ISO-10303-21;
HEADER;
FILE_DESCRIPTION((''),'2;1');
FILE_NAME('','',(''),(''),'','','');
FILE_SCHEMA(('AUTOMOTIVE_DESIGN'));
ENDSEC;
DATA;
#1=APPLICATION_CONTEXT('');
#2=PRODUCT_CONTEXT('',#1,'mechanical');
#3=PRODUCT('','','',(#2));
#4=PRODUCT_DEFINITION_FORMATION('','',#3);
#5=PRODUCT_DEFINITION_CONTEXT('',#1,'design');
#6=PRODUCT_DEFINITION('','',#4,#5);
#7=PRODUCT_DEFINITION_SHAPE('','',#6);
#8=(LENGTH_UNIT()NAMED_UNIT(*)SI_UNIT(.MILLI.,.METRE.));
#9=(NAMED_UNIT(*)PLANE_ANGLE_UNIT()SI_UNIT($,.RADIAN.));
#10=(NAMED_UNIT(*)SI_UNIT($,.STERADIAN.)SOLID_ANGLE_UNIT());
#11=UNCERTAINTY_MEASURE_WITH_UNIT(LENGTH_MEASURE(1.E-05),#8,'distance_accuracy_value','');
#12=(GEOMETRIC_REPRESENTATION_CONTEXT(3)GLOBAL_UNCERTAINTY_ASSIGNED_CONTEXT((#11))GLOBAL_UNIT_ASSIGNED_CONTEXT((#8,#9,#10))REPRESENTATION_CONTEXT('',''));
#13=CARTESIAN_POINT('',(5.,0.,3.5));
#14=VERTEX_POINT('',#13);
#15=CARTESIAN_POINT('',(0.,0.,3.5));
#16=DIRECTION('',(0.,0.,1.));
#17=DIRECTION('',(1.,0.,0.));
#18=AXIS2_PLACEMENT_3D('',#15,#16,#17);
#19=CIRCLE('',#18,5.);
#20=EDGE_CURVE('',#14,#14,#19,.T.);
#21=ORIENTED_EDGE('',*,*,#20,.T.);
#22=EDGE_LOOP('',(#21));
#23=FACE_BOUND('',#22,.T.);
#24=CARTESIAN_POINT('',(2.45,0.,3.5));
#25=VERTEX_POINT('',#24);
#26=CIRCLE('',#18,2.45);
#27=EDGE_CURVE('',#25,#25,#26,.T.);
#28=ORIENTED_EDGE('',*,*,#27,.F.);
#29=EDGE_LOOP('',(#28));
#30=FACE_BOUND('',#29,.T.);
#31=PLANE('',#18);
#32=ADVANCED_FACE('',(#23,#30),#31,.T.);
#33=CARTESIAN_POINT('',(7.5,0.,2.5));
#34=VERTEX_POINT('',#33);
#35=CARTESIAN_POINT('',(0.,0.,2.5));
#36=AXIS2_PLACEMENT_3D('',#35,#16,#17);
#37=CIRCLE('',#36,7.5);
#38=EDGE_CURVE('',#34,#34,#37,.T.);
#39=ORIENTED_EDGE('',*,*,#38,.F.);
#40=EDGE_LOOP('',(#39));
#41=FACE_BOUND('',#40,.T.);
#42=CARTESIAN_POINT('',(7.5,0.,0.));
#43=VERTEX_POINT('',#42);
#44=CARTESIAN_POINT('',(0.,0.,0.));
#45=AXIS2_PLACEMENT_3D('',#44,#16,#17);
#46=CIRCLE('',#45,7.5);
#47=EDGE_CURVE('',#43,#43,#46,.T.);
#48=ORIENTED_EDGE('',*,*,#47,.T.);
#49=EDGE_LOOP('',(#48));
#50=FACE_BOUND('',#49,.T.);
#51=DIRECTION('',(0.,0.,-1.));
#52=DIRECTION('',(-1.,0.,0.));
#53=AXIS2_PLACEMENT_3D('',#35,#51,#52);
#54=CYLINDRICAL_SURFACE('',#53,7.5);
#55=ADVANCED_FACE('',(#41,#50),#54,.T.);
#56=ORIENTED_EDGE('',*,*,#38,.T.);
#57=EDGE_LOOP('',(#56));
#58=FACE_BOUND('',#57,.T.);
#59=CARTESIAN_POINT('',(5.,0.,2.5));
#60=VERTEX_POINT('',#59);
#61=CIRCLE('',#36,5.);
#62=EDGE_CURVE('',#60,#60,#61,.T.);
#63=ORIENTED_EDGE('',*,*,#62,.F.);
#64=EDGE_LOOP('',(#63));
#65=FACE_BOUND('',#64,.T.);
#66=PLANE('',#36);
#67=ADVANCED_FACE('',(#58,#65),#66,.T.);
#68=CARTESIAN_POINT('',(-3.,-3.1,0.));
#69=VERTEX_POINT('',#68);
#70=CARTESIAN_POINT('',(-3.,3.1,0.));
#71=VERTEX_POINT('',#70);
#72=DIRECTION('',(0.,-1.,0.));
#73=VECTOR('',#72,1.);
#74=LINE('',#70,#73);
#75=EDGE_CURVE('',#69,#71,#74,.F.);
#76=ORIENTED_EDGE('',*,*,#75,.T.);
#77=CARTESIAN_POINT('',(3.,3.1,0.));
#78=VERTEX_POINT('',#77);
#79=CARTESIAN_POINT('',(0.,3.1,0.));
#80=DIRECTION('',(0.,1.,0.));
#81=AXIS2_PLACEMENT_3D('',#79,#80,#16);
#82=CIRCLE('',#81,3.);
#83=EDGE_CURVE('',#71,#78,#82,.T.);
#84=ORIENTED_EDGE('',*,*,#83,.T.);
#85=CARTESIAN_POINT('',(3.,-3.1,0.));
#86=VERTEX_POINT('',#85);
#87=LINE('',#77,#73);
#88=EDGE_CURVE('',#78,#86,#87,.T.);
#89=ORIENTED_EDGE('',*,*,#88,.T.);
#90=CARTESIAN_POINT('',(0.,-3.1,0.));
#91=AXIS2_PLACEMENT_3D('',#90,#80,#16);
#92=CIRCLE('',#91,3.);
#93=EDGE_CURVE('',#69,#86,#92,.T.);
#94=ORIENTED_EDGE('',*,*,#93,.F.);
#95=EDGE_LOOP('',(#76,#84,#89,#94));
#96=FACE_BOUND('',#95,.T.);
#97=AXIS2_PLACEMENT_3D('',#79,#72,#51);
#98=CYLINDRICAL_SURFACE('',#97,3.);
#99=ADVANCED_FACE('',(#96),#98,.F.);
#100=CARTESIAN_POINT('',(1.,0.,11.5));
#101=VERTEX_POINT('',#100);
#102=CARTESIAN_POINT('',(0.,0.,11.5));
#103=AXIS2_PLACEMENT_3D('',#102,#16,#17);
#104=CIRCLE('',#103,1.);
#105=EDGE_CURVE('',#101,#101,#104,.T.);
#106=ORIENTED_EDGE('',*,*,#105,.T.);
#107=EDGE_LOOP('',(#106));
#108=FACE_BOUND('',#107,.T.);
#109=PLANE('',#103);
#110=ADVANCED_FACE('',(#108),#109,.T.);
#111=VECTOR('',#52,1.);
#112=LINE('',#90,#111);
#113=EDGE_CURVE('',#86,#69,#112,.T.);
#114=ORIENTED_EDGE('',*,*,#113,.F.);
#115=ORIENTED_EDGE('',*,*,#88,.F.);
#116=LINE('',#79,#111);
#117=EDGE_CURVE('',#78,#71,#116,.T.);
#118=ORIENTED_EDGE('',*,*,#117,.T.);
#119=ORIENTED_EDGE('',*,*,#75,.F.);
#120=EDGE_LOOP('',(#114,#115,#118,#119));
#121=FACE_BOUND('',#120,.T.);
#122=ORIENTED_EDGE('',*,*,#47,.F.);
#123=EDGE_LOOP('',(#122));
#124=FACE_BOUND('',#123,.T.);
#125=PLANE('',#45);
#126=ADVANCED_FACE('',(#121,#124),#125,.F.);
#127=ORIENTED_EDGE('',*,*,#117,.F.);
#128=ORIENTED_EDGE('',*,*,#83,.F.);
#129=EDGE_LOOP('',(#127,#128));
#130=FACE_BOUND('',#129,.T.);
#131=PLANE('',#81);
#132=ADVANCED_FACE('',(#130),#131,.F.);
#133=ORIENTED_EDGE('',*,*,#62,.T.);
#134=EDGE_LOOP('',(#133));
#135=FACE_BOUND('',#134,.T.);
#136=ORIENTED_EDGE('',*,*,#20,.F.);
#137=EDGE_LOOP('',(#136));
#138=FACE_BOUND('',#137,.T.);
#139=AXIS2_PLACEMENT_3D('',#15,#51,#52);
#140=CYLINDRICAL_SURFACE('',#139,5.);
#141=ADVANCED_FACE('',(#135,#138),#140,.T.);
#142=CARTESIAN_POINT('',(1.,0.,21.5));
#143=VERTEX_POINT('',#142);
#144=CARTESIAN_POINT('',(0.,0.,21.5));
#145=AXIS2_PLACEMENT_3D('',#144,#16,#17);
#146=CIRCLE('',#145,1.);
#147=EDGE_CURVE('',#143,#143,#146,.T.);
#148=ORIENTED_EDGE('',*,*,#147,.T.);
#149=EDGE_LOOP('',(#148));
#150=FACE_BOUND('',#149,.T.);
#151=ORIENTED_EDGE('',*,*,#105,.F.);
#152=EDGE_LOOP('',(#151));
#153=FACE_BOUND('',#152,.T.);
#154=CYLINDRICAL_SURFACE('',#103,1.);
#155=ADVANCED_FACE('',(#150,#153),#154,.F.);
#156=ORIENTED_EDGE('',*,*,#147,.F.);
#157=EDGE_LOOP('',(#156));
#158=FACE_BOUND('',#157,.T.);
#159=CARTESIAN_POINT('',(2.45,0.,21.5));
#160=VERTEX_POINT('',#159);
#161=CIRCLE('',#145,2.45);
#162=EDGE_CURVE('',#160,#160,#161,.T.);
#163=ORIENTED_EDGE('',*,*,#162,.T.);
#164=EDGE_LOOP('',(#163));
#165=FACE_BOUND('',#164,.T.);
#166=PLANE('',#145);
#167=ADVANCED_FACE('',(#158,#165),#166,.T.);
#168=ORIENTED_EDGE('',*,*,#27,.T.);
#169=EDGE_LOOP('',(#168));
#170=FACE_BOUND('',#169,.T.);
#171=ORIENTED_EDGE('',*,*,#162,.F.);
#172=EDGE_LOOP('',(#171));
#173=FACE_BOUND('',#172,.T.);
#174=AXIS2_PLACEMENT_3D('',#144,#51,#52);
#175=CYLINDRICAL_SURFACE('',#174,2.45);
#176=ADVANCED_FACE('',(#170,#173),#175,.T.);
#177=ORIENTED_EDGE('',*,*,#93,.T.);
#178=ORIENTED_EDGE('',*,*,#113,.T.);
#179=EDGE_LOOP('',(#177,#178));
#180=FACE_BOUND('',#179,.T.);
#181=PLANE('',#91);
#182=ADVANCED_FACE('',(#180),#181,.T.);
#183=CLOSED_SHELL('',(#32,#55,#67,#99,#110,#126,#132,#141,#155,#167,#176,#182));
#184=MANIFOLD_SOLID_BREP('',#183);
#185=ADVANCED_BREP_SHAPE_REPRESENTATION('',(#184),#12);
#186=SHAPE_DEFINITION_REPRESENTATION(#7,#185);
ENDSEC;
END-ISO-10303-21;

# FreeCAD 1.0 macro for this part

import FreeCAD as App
import Part
import Sketcher

doc = App.newDocument("Part")
body = doc.addObject("PartDesign::Body", "Body")

# Sketch on XY plane
sketch1 = body.newObject("Sketcher::SketchObject", "Sketch")
sketch1.AttachmentSupport = (doc.getObject("XY_Plane"), [""])
sketch1.MapMode = "FlatFace"
sketch1.addGeometry(Part.Circle(App.Vector(0, 0, 0), App.Vector(0, 0, 1), 8), False)
sketch1.addConstraint([
    Sketcher.Constraint("Coincident", 0, 3, -1, 1),
    Sketcher.Constraint("Diameter", 0, 15.0),
])
pad1 = body.newObject("PartDesign::Pad", "Pad")
pad1.Profile = sketch1
pad1.Length = 2.5

# Sketch on XY plane
sketch2 = body.newObject("Sketcher::SketchObject", "Sketch001")
sketch2.AttachmentSupport = (doc.getObject("XY_Plane"), [""])
sketch2.MapMode = "FlatFace"
sketch2.AttachmentOffset = App.Placement(App.Vector(0, 0, 2.5), App.Rotation())
sketch2.addGeometry(Part.Circle(App.Vector(0, 0, 0), App.Vector(0, 0, 1), 5), False)
sketch2.addConstraint([
    Sketcher.Constraint("Coincident", 0, 3, -1, 1),
    Sketcher.Constraint("Diameter", 0, 10.0),
])
pad2 = body.newObject("PartDesign::Pad", "Pad001")
pad2.Profile = sketch2
pad2.Length = 1

# Sketch on XY plane
sketch3 = body.newObject("Sketcher::SketchObject", "Sketch002")
sketch3.AttachmentSupport = (doc.getObject("XY_Plane"), [""])
sketch3.MapMode = "FlatFace"
sketch3.AttachmentOffset = App.Placement(App.Vector(0, 0, 3.5), App.Rotation())
sketch3.addGeometry(Part.Circle(App.Vector(0, 0, 0), App.Vector(0, 0, 1), 2.5), False)
sketch3.addConstraint([
    Sketcher.Constraint("Coincident", 0, 3, -1, 1),
    Sketcher.Constraint("Diameter", 0, 4.9),
])
pad3 = body.newObject("PartDesign::Pad", "Pad002")
pad3.Profile = sketch3
pad3.Length = 18

# Sketch on XY plane
sketch4 = body.newObject("Sketcher::SketchObject", "Sketch003")
sketch4.AttachmentSupport = (doc.getObject("XY_Plane"), [""])
sketch4.MapMode = "FlatFace"
sketch4.AttachmentOffset = App.Placement(App.Vector(0, 0, 21.5), App.Rotation())
sketch4.addGeometry(Part.Circle(App.Vector(0, 0, 0), App.Vector(0, 0, 1), 1), False)
sketch4.addConstraint([
    Sketcher.Constraint("Coincident", 0, 3, -1, 1),
    Sketcher.Constraint("Diameter", 0, 2.0),
])
pocket1 = body.newObject("PartDesign::Pocket", "Pocket")
pocket1.Profile = sketch4
pocket1.Length = 10

# Sketch on XZ plane
sketch5 = body.newObject("Sketcher::SketchObject", "Sketch004")
sketch5.AttachmentSupport = (doc.getObject("XZ_Plane"), [""])
sketch5.MapMode = "FlatFace"
sketch5.addGeometry(Part.Circle(App.Vector(0, 0, 0), App.Vector(0, 0, 1), 3), False)
sketch5.addConstraint([
    Sketcher.Constraint("Coincident", 0, 3, -1, 1),
    Sketcher.Constraint("Diameter", 0, 6.0),
])
pocket2 = body.newObject("PartDesign::Pocket", "Pocket001")
pocket2.Profile = sketch5
pocket2.Type = "TwoLengths"
pocket2.Length = 3.1
pocket2.Length2 = 3.1

doc.recompute()
